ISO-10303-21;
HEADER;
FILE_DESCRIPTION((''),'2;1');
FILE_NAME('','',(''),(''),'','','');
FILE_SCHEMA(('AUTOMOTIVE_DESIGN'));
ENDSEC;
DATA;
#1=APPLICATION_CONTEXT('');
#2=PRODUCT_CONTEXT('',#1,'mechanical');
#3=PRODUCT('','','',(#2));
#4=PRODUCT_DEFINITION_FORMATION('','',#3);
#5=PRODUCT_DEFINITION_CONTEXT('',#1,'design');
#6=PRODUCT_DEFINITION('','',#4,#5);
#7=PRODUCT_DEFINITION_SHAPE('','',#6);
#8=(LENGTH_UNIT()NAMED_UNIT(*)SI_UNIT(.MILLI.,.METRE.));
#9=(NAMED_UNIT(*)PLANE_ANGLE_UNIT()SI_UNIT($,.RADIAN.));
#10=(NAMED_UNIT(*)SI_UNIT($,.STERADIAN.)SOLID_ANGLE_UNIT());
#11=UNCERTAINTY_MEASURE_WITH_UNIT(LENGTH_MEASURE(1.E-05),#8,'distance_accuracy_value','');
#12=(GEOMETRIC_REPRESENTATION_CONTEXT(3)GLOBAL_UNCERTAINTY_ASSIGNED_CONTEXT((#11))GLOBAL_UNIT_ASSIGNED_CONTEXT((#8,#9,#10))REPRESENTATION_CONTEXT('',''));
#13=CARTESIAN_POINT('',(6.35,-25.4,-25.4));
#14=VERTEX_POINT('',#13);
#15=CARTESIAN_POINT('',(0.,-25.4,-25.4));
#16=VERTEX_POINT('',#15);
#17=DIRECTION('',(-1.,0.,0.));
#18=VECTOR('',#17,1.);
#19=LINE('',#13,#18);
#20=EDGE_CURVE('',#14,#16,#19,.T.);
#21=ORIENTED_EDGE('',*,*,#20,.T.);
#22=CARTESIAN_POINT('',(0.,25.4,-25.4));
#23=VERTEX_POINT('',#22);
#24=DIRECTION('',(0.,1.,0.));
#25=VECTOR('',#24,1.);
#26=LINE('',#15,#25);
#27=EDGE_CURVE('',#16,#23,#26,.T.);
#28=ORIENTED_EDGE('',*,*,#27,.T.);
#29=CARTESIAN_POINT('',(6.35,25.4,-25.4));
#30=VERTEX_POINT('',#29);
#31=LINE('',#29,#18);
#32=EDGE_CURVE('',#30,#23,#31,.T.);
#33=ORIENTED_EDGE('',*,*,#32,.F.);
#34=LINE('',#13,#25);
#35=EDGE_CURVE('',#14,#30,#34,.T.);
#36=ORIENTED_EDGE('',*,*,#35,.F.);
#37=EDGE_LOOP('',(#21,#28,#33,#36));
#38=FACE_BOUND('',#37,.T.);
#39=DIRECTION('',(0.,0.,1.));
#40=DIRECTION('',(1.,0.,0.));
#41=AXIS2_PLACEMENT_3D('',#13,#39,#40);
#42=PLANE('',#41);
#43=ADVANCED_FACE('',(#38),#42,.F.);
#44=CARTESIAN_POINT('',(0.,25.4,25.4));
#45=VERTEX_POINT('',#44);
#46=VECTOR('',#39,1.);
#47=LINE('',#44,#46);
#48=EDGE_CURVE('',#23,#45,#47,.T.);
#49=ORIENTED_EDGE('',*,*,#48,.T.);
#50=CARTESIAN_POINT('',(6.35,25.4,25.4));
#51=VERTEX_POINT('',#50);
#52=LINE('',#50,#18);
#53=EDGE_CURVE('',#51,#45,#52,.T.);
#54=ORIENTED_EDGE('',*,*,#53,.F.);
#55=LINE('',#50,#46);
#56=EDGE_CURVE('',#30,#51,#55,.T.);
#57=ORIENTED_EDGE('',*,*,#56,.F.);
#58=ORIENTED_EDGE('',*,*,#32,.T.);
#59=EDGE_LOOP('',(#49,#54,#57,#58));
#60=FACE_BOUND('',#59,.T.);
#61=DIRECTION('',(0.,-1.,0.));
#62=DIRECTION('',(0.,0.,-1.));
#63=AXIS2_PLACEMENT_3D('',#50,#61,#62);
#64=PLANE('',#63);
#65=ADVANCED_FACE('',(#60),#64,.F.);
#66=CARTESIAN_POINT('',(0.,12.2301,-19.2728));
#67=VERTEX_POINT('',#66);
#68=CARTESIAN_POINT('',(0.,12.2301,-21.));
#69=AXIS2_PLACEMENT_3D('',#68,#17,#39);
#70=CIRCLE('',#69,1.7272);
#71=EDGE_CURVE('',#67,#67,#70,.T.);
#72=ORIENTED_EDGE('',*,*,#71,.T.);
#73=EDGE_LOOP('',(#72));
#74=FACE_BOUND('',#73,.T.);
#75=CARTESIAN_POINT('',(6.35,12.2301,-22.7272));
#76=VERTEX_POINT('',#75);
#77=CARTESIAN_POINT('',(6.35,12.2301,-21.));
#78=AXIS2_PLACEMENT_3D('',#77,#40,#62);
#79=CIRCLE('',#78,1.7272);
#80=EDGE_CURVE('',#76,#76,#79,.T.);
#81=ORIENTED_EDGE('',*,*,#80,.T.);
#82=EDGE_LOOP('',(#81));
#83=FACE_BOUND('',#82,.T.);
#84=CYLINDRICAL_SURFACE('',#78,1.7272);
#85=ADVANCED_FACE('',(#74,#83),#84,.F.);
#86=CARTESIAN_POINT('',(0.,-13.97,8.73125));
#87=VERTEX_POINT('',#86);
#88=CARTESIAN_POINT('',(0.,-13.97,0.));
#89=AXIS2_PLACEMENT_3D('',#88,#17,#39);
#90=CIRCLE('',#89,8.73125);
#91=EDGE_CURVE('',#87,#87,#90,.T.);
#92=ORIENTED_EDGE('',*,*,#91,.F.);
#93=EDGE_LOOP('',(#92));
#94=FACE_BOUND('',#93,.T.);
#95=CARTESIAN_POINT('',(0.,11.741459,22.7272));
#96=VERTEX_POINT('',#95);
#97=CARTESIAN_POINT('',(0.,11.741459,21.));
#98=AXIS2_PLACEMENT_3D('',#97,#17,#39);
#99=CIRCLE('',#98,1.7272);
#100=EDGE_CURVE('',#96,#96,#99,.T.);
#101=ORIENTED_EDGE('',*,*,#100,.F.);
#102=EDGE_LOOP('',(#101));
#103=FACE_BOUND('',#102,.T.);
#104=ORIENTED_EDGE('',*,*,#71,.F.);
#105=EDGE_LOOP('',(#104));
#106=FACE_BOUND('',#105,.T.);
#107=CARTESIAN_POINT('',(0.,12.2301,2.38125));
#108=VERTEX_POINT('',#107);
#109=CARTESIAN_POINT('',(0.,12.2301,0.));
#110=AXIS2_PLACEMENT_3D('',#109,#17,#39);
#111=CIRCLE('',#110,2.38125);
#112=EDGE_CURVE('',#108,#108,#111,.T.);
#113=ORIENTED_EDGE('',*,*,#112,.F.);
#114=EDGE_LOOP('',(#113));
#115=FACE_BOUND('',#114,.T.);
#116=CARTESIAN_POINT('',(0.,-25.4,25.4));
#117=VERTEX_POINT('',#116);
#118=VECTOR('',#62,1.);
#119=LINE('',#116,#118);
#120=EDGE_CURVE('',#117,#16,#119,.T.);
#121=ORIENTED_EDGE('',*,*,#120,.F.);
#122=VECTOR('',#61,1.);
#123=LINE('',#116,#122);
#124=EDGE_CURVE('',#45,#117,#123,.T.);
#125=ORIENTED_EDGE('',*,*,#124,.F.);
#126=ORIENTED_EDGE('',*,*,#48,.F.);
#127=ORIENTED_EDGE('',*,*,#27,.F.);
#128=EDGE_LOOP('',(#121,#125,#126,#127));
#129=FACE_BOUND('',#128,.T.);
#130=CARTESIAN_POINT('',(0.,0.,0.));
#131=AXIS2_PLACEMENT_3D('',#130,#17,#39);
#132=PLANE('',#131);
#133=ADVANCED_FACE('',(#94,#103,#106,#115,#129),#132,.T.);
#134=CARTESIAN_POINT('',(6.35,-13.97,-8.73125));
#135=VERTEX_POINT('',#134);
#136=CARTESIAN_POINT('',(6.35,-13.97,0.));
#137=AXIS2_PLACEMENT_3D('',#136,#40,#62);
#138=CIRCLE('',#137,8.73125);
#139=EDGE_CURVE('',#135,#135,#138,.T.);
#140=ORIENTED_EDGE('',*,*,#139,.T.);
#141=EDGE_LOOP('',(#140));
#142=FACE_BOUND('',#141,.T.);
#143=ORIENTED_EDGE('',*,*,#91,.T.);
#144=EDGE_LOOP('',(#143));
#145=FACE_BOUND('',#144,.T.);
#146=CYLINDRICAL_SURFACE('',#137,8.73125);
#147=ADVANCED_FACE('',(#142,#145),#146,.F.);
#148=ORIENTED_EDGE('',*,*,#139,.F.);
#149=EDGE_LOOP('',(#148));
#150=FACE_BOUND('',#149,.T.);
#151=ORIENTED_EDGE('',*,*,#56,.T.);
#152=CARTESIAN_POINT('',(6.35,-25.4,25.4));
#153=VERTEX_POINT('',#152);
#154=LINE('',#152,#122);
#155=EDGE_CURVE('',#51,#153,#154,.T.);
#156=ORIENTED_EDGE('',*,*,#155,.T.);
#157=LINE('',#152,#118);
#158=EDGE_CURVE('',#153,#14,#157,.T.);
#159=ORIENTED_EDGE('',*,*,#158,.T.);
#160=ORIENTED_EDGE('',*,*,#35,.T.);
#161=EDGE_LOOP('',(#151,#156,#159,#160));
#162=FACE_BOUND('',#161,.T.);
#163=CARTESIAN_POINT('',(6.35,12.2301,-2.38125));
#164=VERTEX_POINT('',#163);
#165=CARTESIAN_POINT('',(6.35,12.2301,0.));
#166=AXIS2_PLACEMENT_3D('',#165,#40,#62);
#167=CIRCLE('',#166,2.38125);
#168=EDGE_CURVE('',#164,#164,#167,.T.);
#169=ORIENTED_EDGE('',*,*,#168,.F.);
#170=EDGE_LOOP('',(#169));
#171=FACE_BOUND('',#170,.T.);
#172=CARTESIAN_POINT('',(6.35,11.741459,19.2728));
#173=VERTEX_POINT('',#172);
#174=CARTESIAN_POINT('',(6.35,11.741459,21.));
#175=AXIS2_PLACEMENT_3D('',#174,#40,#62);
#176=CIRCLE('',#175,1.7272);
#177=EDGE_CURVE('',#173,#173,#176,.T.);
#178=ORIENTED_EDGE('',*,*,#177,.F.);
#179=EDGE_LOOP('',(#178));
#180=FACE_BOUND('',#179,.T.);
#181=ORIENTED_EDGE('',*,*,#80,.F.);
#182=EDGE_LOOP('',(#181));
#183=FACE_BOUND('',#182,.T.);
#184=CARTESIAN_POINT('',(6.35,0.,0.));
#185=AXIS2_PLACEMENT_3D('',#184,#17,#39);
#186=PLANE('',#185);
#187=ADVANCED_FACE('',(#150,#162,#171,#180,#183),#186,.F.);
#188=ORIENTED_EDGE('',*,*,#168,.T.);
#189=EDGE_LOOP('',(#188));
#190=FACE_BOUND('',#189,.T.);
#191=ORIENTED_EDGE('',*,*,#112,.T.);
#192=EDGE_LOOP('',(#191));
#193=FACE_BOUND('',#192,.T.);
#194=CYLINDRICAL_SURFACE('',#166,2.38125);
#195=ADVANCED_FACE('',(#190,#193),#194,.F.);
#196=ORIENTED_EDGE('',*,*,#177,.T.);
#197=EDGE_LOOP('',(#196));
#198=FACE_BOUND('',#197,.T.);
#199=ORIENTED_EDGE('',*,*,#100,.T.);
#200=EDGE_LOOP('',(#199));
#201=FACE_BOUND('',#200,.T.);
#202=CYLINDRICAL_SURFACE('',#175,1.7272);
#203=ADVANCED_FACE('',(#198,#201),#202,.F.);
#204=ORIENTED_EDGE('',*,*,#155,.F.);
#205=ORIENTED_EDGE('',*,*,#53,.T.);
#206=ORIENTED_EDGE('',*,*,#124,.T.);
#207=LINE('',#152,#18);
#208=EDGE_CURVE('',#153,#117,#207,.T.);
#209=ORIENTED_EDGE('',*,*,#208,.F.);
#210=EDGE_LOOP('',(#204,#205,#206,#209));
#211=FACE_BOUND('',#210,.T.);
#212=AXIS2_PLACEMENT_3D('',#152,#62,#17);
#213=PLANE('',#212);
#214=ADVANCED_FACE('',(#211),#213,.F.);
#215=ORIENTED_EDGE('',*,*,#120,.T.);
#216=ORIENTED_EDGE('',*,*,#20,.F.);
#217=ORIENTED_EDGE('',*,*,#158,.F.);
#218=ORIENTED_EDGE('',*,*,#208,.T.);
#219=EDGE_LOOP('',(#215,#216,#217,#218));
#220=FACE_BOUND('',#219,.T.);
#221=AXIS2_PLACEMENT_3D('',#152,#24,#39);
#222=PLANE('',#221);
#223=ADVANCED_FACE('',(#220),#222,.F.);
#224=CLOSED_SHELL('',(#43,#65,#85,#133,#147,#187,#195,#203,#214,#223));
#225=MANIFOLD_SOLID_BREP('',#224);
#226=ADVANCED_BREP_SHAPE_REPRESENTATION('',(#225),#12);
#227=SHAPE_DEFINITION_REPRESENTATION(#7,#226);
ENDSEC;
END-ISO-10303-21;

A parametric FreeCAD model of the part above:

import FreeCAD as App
import Part
import Sketcher
from FreeCAD import Vector
Q = App.Units.Quantity

doc = App.newDocument("Part")
body = doc.addObject("PartDesign::Body", "Body")

sketch1 = body.newObject("Sketcher::SketchObject", "Sketch")
sketch1.AttachmentSupport = (doc.getObject("YZ_Plane"), [""])
sketch1.MapMode = "FlatFace"
sketch1.addGeometry(Part.LineSegment(Vector(25, 25, 0), Vector(-25, 25, 0)), False)
sketch1.addGeometry(Part.LineSegment(Vector(-25, 25, 0), Vector(-25, -25, 0)), False)
sketch1.addGeometry(Part.LineSegment(Vector(-25, -25, 0), Vector(25, -25, 0)), False)
sketch1.addGeometry(Part.LineSegment(Vector(25, -25, 0), Vector(25, 25, 0)), False)
sketch1.addConstraint(Sketcher.Constraint("Coincident", 0, 2, 1, 1))
sketch1.addConstraint(Sketcher.Constraint("Coincident", 1, 2, 2, 1))
sketch1.addConstraint(Sketcher.Constraint("Coincident", 2, 2, 3, 1))
sketch1.addConstraint(Sketcher.Constraint("Coincident", 3, 2, 0, 1))
sketch1.addConstraint(Sketcher.Constraint("Horizontal", 0))
sketch1.addConstraint(Sketcher.Constraint("Vertical", 1))
sketch1.addConstraint(Sketcher.Constraint("Horizontal", 2))
sketch1.addConstraint(Sketcher.Constraint("Vertical", 3))
sketch1.addConstraint(Sketcher.Constraint("Symmetric", 0, 2, 2, 2, -1, 1))
sketch1.addConstraint(Sketcher.Constraint("Equal", 2, 1))
sketch1.addConstraint(Sketcher.Constraint("DistanceX", 0, 2, 0, 1, Q("2 in")))
pad1 = body.newObject("PartDesign::Pad", "Pad")
pad1.Profile = sketch1
pad1.Length = Q("0.25 in")

sketch2 = body.newObject("Sketcher::SketchObject", "Sketch001")
sketch2.AttachmentSupport = (doc.getObject("YZ_Plane"), [""])
sketch2.MapMode = "FlatFace"
sketch2.AttachmentOffset = App.Placement(Vector(0, 0, 0.25 * 25.4), App.Rotation())
sketch2.addGeometry(Part.Circle(Vector(-14, 0, 0), Vector(0, 0, 1), 9), False)
sketch2.addConstraint(Sketcher.Constraint("PointOnObject", 0, 3, -1))
sketch2.addConstraint(Sketcher.Constraint("Diameter", 0, Q("0.6875 in")))
sketch2.addConstraint(Sketcher.Constraint("DistanceX", 0, 3, -1, 1, Q("0.55 in")))
doc.recompute()
hole = body.newObject("PartDesign::Hole", "Hole")
hole.Profile = sketch2
hole.ThreadType = "None"
hole.Diameter = Q("0.6875 in")
hole.DepthType = "Dimension"
hole.Depth = Q("2.76 in")
hole.DrillPoint = "Angled"
hole.DrillPointAngle = 118

sketch3 = body.newObject("Sketcher::SketchObject", "Sketch002")
sketch3.AttachmentSupport = (doc.getObject("YZ_Plane"), [""])
sketch3.MapMode = "FlatFace"
sketch3.AttachmentOffset = App.Placement(Vector(0, 0, 0.25 * 25.4), App.Rotation())
sketch3.addGeometry(Part.Circle(Vector(12.2, 0, 0), Vector(0, 0, 1), 2.4), False)
sketch3.addConstraint(Sketcher.Constraint("PointOnObject", 0, 3, -1))
sketch3.addConstraint(Sketcher.Constraint("Diameter", 0, Q("0.1875 in")))
sketch3.addConstraint(Sketcher.Constraint("DistanceX", -1, 1, 0, 3, Q("0.4815 in")))
doc.recompute()
hole2 = body.newObject("PartDesign::Hole", "Hole001")
hole2.Profile = sketch3
hole2.ThreadType = "None"
hole2.Diameter = Q("0.1875 in")
hole2.DepthType = "Dimension"
hole2.Depth = Q("2.76 in")
hole2.DrillPoint = "Angled"
hole2.DrillPointAngle = 118

sketch4 = body.newObject("Sketcher::SketchObject", "Sketch003")
sketch4.AttachmentSupport = (doc.getObject("YZ_Plane"), [""])
sketch4.MapMode = "FlatFace"
sketch4.AttachmentOffset = App.Placement(Vector(0, 0, 0.25 * 25.4), App.Rotation())
sketch4.addGeometry(Part.Circle(Vector(12.2, -21, 0), Vector(0, 0, 1), 1.7), False)
sketch4.addGeometry(Part.Circle(Vector(11.7, 21, 0), Vector(0, 0, 1), 1.7), False)
sketch4.addConstraint(Sketcher.Constraint("Equal", 0, 1))
sketch4.addConstraint(Sketcher.Constraint("Diameter", 0, Q("0.136 in")))
sketch4.addConstraint(Sketcher.Constraint("DistanceX", -1, 1, 0, 3, Q("0.4815 in")))
sketch4.addConstraint(Sketcher.Constraint("DistanceY", 0, 3, -1, 1, 21.0))
sketch4.addConstraint(Sketcher.Constraint("DistanceY", -1, 1, 1, 3, 21.0))
sketch4.addConstraint(Sketcher.Constraint("DistanceX", -1, 1, 1, 3, 11.741459))
doc.recompute()
hole3 = body.newObject("PartDesign::Hole", "Hole002")
hole3.Profile = sketch4
hole3.ThreadType = "None"
hole3.Diameter = Q("0.136 in")
hole3.DepthType = "Dimension"
hole3.Depth = Q("2.76 in")
hole3.DrillPoint = "Angled"
hole3.DrillPointAngle = 118

doc.recompute()
